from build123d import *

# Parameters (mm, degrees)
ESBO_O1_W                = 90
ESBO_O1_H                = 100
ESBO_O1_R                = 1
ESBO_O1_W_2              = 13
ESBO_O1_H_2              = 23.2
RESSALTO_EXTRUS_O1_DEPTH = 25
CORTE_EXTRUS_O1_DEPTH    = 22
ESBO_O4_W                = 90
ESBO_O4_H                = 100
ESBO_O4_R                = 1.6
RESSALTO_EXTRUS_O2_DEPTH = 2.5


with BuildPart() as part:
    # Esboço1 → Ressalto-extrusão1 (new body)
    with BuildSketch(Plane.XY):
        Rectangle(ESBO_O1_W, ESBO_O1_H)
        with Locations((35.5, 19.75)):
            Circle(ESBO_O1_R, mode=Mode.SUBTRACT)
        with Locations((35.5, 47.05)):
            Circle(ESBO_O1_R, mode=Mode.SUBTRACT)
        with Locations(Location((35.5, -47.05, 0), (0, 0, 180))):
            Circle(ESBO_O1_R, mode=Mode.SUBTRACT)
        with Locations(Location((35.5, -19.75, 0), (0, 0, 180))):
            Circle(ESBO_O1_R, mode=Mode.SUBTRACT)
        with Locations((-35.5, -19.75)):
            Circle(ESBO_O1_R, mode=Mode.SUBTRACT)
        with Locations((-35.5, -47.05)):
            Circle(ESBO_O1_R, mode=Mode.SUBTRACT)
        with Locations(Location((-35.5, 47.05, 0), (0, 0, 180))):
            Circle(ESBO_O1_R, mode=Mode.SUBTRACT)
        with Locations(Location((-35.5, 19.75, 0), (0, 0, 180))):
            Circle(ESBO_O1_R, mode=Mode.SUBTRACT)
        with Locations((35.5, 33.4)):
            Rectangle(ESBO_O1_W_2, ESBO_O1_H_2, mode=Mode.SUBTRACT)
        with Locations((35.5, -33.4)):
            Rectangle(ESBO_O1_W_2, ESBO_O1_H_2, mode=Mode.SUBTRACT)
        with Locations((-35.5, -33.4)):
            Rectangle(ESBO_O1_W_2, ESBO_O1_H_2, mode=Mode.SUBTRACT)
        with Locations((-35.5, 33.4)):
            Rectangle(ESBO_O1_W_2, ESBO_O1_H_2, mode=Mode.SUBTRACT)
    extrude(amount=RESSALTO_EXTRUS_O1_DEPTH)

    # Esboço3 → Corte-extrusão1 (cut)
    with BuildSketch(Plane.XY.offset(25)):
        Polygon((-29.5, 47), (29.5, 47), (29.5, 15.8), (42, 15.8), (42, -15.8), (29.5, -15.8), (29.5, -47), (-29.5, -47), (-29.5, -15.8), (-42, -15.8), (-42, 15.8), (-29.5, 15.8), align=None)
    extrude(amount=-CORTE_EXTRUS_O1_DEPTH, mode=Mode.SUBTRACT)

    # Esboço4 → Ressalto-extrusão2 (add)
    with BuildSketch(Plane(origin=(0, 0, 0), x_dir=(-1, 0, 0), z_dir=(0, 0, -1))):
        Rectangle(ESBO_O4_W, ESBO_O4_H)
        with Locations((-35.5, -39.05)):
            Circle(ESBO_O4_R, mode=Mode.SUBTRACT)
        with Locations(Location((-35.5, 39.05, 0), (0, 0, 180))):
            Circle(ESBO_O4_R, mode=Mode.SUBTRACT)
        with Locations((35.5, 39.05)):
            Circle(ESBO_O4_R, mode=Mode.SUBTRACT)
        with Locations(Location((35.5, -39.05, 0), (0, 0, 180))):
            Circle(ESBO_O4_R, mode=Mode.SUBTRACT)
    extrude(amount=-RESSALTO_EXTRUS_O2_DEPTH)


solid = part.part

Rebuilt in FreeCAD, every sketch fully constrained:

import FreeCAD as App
import Part
import Sketcher

doc = App.newDocument("Part")
params = doc.addObject("Spreadsheet::Sheet", "Params")
for row, (alias, value) in enumerate([
    ("sketch1_diameter", "2 mm"),
    ("sketch1_width", "90 mm"),
    ("sketch1_width2", "13 mm"),
    ("sketch1_height", "100 mm"),
    ("sketch1_height2", "23.2 mm"),
    ("pad1_length", "25 mm"),
    ("sketch2_width", "59 mm"),
    ("sketch2_width2", "12.5 mm"),
    ("sketch2_height", "31.2 mm"),
    ("sketch2_height2", "31.6 mm"),
    ("pocket1_length", "22 mm"),
    ("sketch3_diameter", "3.2 mm"),
    ("sketch3_width", "90 mm"),
    ("sketch3_height", "100 mm"),
    ("pad2_length", "2.5 mm"),
], start=1):
    params.set(f"A{row}", alias)
    params.set(f"B{row}", "=" + value)
    params.setAlias(f"B{row}", alias)

body = doc.addObject("PartDesign::Body", "Body")

# Sketch on XY plane
sketch1 = doc.addObject("Sketcher::SketchObject", "Sketch")
body.addObject(sketch1)
sketch1.AttachmentSupport = (doc.XY_Plane, [""])
sketch1.MapMode = "FlatFace"
sketch1.addGeometry([
    Part.LineSegment(App.Vector(-45, 50, 0), App.Vector(-45, -50, 0)),  # 0
    Part.LineSegment(App.Vector(-45, -50, 0), App.Vector(45, -50, 0)),  # 1
    Part.LineSegment(App.Vector(45, -50, 0), App.Vector(45, 50, 0)),  # 2
    Part.LineSegment(App.Vector(45, 50, 0), App.Vector(-45, 50, 0)),  # 3
    Part.Circle(App.Vector(-35.5, -47, 0), App.Vector(0, 0, 1), 1),  # 4
    Part.LineSegment(App.Vector(-29, -45, 0), App.Vector(-42, -45, 0)),  # 5
    Part.LineSegment(App.Vector(-42, -45, 0), App.Vector(-42, -21.8, 0)),  # 6
    Part.LineSegment(App.Vector(-42, -21.8, 0), App.Vector(-29, -21.8, 0)),  # 7
    Part.LineSegment(App.Vector(-29, -21.8, 0), App.Vector(-29, -45, 0)),  # 8
    Part.Circle(App.Vector(-35.5, -19.8, 0), App.Vector(0, 0, 1), 1),  # 9
    Part.Circle(App.Vector(35.5, -47, 0), App.Vector(0, 0, 1), 1),  # 10
    Part.LineSegment(App.Vector(42, -45, 0), App.Vector(29, -45, 0)),  # 11
    Part.LineSegment(App.Vector(29, -45, 0), App.Vector(29, -21.8, 0)),  # 12
    Part.LineSegment(App.Vector(29, -21.8, 0), App.Vector(42, -21.8, 0)),  # 13
    Part.LineSegment(App.Vector(42, -21.8, 0), App.Vector(42, -45, 0)),  # 14
    Part.Circle(App.Vector(35.5, -19.8, 0), App.Vector(0, 0, 1), 1),  # 15
    Part.Circle(App.Vector(-35.5, 19.8, 0), App.Vector(0, 0, 1), 1),  # 16
    Part.LineSegment(App.Vector(-29, 21.8, 0), App.Vector(-42, 21.8, 0)),  # 17
    Part.LineSegment(App.Vector(-42, 21.8, 0), App.Vector(-42, 45, 0)),  # 18
    Part.LineSegment(App.Vector(-42, 45, 0), App.Vector(-29, 45, 0)),  # 19
    Part.LineSegment(App.Vector(-29, 45, 0), App.Vector(-29, 21.8, 0)),  # 20
    Part.Circle(App.Vector(-35.5, 47, 0), App.Vector(0, 0, 1), 1),  # 21
    Part.Circle(App.Vector(35.5, 19.8, 0), App.Vector(0, 0, 1), 1),  # 22
    Part.LineSegment(App.Vector(42, 21.8, 0), App.Vector(29, 21.8, 0)),  # 23
    Part.LineSegment(App.Vector(29, 21.8, 0), App.Vector(29, 45, 0)),  # 24
    Part.LineSegment(App.Vector(29, 45, 0), App.Vector(42, 45, 0)),  # 25
    Part.LineSegment(App.Vector(42, 45, 0), App.Vector(42, 21.8, 0)),  # 26
    Part.Circle(App.Vector(35.5, 47, 0), App.Vector(0, 0, 1), 1),  # 27
], False)
sketch1.addConstraint([
    Sketcher.Constraint("Coincident", 0, 2, 1, 1),
    Sketcher.Constraint("Coincident", 1, 2, 2, 1),
    Sketcher.Constraint("Coincident", 2, 2, 3, 1),
    Sketcher.Constraint("Coincident", 3, 2, 0, 1),
    Sketcher.Constraint("Coincident", 5, 2, 6, 1),
    Sketcher.Constraint("Coincident", 6, 2, 7, 1),
    Sketcher.Constraint("Coincident", 7, 2, 8, 1),
    Sketcher.Constraint("Coincident", 8, 2, 5, 1),
    Sketcher.Constraint("Coincident", 11, 2, 12, 1),
    Sketcher.Constraint("Coincident", 12, 2, 13, 1),
    Sketcher.Constraint("Coincident", 13, 2, 14, 1),
    Sketcher.Constraint("Coincident", 14, 2, 11, 1),
    Sketcher.Constraint("Coincident", 17, 2, 18, 1),
    Sketcher.Constraint("Coincident", 18, 2, 19, 1),
    Sketcher.Constraint("Coincident", 19, 2, 20, 1),
    Sketcher.Constraint("Coincident", 20, 2, 17, 1),
    Sketcher.Constraint("Coincident", 23, 2, 24, 1),
    Sketcher.Constraint("Coincident", 24, 2, 25, 1),
    Sketcher.Constraint("Coincident", 25, 2, 26, 1),
    Sketcher.Constraint("Coincident", 26, 2, 23, 1),
    Sketcher.Constraint("Vertical", 0),
    Sketcher.Constraint("Horizontal", 1),
    Sketcher.Constraint("Vertical", 2),
    Sketcher.Constraint("Horizontal", 3),
    Sketcher.Constraint("Horizontal", 5),
    Sketcher.Constraint("Vertical", 6),
    Sketcher.Constraint("Horizontal", 7),
    Sketcher.Constraint("Vertical", 8),
    Sketcher.Constraint("Horizontal", 11),
    Sketcher.Constraint("Vertical", 12),
    Sketcher.Constraint("Horizontal", 13),
    Sketcher.Constraint("Vertical", 14),
    Sketcher.Constraint("Horizontal", 17),
    Sketcher.Constraint("Vertical", 18),
    Sketcher.Constraint("Horizontal", 19),
    Sketcher.Constraint("Vertical", 20),
    Sketcher.Constraint("Horizontal", 23),
    Sketcher.Constraint("Vertical", 24),
    Sketcher.Constraint("Horizontal", 25),
    Sketcher.Constraint("Vertical", 26),
    Sketcher.Constraint("Equal", 4, 9),
    Sketcher.Constraint("Equal", 9, 10),
    Sketcher.Constraint("Equal", 10, 15),
    Sketcher.Constraint("Equal", 15, 16),
    Sketcher.Constraint("Equal", 16, 21),
    Sketcher.Constraint("Equal", 21, 22),
    Sketcher.Constraint("Equal", 22, 27),
    Sketcher.Constraint("Symmetric", 15, 3, 16, 3, -1, 1),
    Sketcher.Constraint("Symmetric", 10, 3, 21, 3, -1, 1),
    Sketcher.Constraint("Symmetric", 9, 3, 22, 3, -1, 1),
    Sketcher.Constraint("Symmetric", 4, 3, 27, 3, -1, 1),
    Sketcher.Constraint("Symmetric", 0, 2, 2, 2, -1, 1),
    Sketcher.Constraint("Symmetric", 13, 2, 17, 2, -1, 1),
    Sketcher.Constraint("Symmetric", 11, 2, 19, 2, -1, 1),
    Sketcher.Constraint("Symmetric", 7, 2, 23, 2, -1, 1),
    Sketcher.Constraint("Symmetric", 5, 2, 25, 2, -1, 1),
    Sketcher.Constraint("Symmetric", 4, 3, 10, 3, -2),
    Sketcher.Constraint("Symmetric", 9, 3, 15, 3, -2),
    Sketcher.Constraint("Symmetric", 8, 2, 11, 2, -2),
    Sketcher.Constraint("Symmetric", 6, 2, 13, 2, -2),
    Sketcher.Constraint("Vertical", 4, 3, 9, 3),
    Sketcher.Constraint("Diameter", 4, 2.0),
    Sketcher.Constraint("DistanceX", 1, 1, 1, 2, 90.0),
    Sketcher.Constraint("DistanceX", 5, 2, 5, 1, 13.0),
    Sketcher.Constraint("DistanceY", 0, 2, 0, 1, 100.0),
    Sketcher.Constraint("DistanceY", 6, 1, 6, 2, 23.2),
    Sketcher.Constraint("DistanceX", 5, 2, -1, 1, 42.0),
    Sketcher.Constraint("DistanceY", 5, 2, -1, 1, 45.0),
    Sketcher.Constraint("DistanceX", 4, 3, 10, 3, 71.0),
    Sketcher.Constraint("DistanceY", 4, 3, 9, 3, 27.3),
    Sketcher.Constraint("DistanceY", 9, 3, 16, 3, 39.5),
])
sketch1.setExpression("Constraints[61]", "Params.sketch1_diameter")
sketch1.setExpression("Constraints[62]", "Params.sketch1_width")
sketch1.setExpression("Constraints[63]", "Params.sketch1_width2")
sketch1.setExpression("Constraints[64]", "Params.sketch1_height")
sketch1.setExpression("Constraints[65]", "Params.sketch1_height2")
pad1 = doc.addObject("PartDesign::Pad", "Pad")
body.addObject(pad1)
pad1.Profile = sketch1
pad1.setExpression("Length", "Params.pad1_length")

# Sketch on XY plane
sketch2 = doc.addObject("Sketcher::SketchObject", "Sketch001")
body.addObject(sketch2)
sketch2.AttachmentSupport = (doc.XY_Plane, [""])
sketch2.MapMode = "FlatFace"
sketch2.AttachmentOffset = App.Placement(App.Vector(0, 0, 25), App.Rotation())
sketch2.addGeometry([
    Part.LineSegment(App.Vector(30, 47, 0), App.Vector(-30, 47, 0)),  # 0
    Part.LineSegment(App.Vector(-30, 47, 0), App.Vector(-30, 16, 0)),  # 1
    Part.LineSegment(App.Vector(-30, 16, 0), App.Vector(-42, 16, 0)),  # 2
    Part.LineSegment(App.Vector(-42, 16, 0), App.Vector(-42, -16, 0)),  # 3
    Part.LineSegment(App.Vector(-42, -16, 0), App.Vector(-30, -16, 0)),  # 4
    Part.LineSegment(App.Vector(-30, -16, 0), App.Vector(-30, -47, 0)),  # 5
    Part.LineSegment(App.Vector(-30, -47, 0), App.Vector(30, -47, 0)),  # 6
    Part.LineSegment(App.Vector(30, -47, 0), App.Vector(30, -16, 0)),  # 7
    Part.LineSegment(App.Vector(30, -16, 0), App.Vector(42, -16, 0)),  # 8
    Part.LineSegment(App.Vector(42, -16, 0), App.Vector(42, 16, 0)),  # 9
    Part.LineSegment(App.Vector(42, 16, 0), App.Vector(30, 16, 0)),  # 10
    Part.LineSegment(App.Vector(30, 16, 0), App.Vector(30, 47, 0)),  # 11
], False)
sketch2.addConstraint([
    Sketcher.Constraint("Coincident", 0, 2, 1, 1),
    Sketcher.Constraint("Coincident", 1, 2, 2, 1),
    Sketcher.Constraint("Coincident", 2, 2, 3, 1),
    Sketcher.Constraint("Coincident", 3, 2, 4, 1),
    Sketcher.Constraint("Coincident", 4, 2, 5, 1),
    Sketcher.Constraint("Coincident", 5, 2, 6, 1),
    Sketcher.Constraint("Coincident", 6, 2, 7, 1),
    Sketcher.Constraint("Coincident", 7, 2, 8, 1),
    Sketcher.Constraint("Coincident", 8, 2, 9, 1),
    Sketcher.Constraint("Coincident", 9, 2, 10, 1),
    Sketcher.Constraint("Coincident", 10, 2, 11, 1),
    Sketcher.Constraint("Coincident", 11, 2, 0, 1),
    Sketcher.Constraint("Horizontal", 0),
    Sketcher.Constraint("Vertical", 1),
    Sketcher.Constraint("Horizontal", 2),
    Sketcher.Constraint("Vertical", 3),
    Sketcher.Constraint("Horizontal", 4),
    Sketcher.Constraint("Vertical", 5),
    Sketcher.Constraint("Horizontal", 6),
    Sketcher.Constraint("Vertical", 7),
    Sketcher.Constraint("Horizontal", 8),
    Sketcher.Constraint("Vertical", 9),
    Sketcher.Constraint("Horizontal", 10),
    Sketcher.Constraint("Vertical", 11),
    Sketcher.Constraint("Symmetric", 0, 2, 6, 2, -1, 1),
    Sketcher.Constraint("Symmetric", 2, 2, 8, 2, -1, 1),
    Sketcher.Constraint("Symmetric", 4, 2, 10, 2, -1, 1),
    Sketcher.Constraint("Symmetric", 4, 2, 7, 2, -2),
    Sketcher.Constraint("DistanceX", 0, 2, 0, 1, 59.0),
    Sketcher.Constraint("DistanceX", 2, 2, 2, 1, 12.5),
    Sketcher.Constraint("DistanceY", 1, 2, 1, 1, 31.2),
    Sketcher.Constraint("DistanceY", 3, 2, 3, 1, 31.6),
])
sketch2.setExpression("Constraints[28]", "Params.sketch2_width")
sketch2.setExpression("Constraints[29]", "Params.sketch2_width2")
sketch2.setExpression("Constraints[30]", "Params.sketch2_height")
sketch2.setExpression("Constraints[31]", "Params.sketch2_height2")
pocket1 = doc.addObject("PartDesign::Pocket", "Pocket")
body.addObject(pocket1)
pocket1.Profile = sketch2
pocket1.setExpression("Length", "Params.pocket1_length")

# Sketch on XY plane
sketch3 = doc.addObject("Sketcher::SketchObject", "Sketch002")
body.addObject(sketch3)
sketch3.AttachmentSupport = (doc.XY_Plane, [""])
sketch3.MapMode = "FlatFace"
sketch3.addGeometry([
    Part.LineSegment(App.Vector(45, 50, 0), App.Vector(45, -50, 0)),  # 0
    Part.LineSegment(App.Vector(45, -50, 0), App.Vector(-45, -50, 0)),  # 1
    Part.LineSegment(App.Vector(-45, -50, 0), App.Vector(-45, 50, 0)),  # 2
    Part.LineSegment(App.Vector(-45, 50, 0), App.Vector(45, 50, 0)),  # 3
    Part.Circle(App.Vector(35.5, -39, 0), App.Vector(0, 0, 1), 1.6),  # 4
    Part.Circle(App.Vector(-35.5, -39, 0), App.Vector(0, 0, 1), 1.6),  # 5
    Part.Circle(App.Vector(35.5, 39, 0), App.Vector(0, 0, 1), 1.6),  # 6
    Part.Circle(App.Vector(-35.5, 39, 0), App.Vector(0, 0, 1), 1.6),  # 7
], False)
sketch3.addConstraint([
    Sketcher.Constraint("Coincident", 0, 2, 1, 1),
    Sketcher.Constraint("Coincident", 1, 2, 2, 1),
    Sketcher.Constraint("Coincident", 2, 2, 3, 1),
    Sketcher.Constraint("Coincident", 3, 2, 0, 1),
    Sketcher.Constraint("Vertical", 0),
    Sketcher.Constraint("Horizontal", 1),
    Sketcher.Constraint("Vertical", 2),
    Sketcher.Constraint("Horizontal", 3),
    Sketcher.Constraint("Equal", 4, 5),
    Sketcher.Constraint("Equal", 5, 6),
    Sketcher.Constraint("Equal", 6, 7),
    Sketcher.Constraint("Symmetric", 5, 3, 6, 3, -1, 1),
    Sketcher.Constraint("Symmetric", 4, 3, 7, 3, -1, 1),
    Sketcher.Constraint("Symmetric", 0, 2, 2, 2, -1, 1),
    Sketcher.Constraint("Symmetric", 4, 3, 5, 3, -2),
    Sketcher.Constraint("Diameter", 4, 3.2),
    Sketcher.Constraint("DistanceX", 1, 2, 1, 1, 90.0),
    Sketcher.Constraint("DistanceY", 0, 2, 0, 1, 100.0),
    Sketcher.Constraint("DistanceX", 5, 3, 4, 3, 71.0),
    Sketcher.Constraint("DistanceY", 4, 3, 6, 3, 78.1),
])
sketch3.setExpression("Constraints[15]", "Params.sketch3_diameter")
sketch3.setExpression("Constraints[16]", "Params.sketch3_width")
sketch3.setExpression("Constraints[17]", "Params.sketch3_height")
pad2 = doc.addObject("PartDesign::Pad", "Pad001")
body.addObject(pad2)
pad2.Profile = sketch3
pad2.setExpression("Length", "Params.pad2_length")

doc.recompute()
